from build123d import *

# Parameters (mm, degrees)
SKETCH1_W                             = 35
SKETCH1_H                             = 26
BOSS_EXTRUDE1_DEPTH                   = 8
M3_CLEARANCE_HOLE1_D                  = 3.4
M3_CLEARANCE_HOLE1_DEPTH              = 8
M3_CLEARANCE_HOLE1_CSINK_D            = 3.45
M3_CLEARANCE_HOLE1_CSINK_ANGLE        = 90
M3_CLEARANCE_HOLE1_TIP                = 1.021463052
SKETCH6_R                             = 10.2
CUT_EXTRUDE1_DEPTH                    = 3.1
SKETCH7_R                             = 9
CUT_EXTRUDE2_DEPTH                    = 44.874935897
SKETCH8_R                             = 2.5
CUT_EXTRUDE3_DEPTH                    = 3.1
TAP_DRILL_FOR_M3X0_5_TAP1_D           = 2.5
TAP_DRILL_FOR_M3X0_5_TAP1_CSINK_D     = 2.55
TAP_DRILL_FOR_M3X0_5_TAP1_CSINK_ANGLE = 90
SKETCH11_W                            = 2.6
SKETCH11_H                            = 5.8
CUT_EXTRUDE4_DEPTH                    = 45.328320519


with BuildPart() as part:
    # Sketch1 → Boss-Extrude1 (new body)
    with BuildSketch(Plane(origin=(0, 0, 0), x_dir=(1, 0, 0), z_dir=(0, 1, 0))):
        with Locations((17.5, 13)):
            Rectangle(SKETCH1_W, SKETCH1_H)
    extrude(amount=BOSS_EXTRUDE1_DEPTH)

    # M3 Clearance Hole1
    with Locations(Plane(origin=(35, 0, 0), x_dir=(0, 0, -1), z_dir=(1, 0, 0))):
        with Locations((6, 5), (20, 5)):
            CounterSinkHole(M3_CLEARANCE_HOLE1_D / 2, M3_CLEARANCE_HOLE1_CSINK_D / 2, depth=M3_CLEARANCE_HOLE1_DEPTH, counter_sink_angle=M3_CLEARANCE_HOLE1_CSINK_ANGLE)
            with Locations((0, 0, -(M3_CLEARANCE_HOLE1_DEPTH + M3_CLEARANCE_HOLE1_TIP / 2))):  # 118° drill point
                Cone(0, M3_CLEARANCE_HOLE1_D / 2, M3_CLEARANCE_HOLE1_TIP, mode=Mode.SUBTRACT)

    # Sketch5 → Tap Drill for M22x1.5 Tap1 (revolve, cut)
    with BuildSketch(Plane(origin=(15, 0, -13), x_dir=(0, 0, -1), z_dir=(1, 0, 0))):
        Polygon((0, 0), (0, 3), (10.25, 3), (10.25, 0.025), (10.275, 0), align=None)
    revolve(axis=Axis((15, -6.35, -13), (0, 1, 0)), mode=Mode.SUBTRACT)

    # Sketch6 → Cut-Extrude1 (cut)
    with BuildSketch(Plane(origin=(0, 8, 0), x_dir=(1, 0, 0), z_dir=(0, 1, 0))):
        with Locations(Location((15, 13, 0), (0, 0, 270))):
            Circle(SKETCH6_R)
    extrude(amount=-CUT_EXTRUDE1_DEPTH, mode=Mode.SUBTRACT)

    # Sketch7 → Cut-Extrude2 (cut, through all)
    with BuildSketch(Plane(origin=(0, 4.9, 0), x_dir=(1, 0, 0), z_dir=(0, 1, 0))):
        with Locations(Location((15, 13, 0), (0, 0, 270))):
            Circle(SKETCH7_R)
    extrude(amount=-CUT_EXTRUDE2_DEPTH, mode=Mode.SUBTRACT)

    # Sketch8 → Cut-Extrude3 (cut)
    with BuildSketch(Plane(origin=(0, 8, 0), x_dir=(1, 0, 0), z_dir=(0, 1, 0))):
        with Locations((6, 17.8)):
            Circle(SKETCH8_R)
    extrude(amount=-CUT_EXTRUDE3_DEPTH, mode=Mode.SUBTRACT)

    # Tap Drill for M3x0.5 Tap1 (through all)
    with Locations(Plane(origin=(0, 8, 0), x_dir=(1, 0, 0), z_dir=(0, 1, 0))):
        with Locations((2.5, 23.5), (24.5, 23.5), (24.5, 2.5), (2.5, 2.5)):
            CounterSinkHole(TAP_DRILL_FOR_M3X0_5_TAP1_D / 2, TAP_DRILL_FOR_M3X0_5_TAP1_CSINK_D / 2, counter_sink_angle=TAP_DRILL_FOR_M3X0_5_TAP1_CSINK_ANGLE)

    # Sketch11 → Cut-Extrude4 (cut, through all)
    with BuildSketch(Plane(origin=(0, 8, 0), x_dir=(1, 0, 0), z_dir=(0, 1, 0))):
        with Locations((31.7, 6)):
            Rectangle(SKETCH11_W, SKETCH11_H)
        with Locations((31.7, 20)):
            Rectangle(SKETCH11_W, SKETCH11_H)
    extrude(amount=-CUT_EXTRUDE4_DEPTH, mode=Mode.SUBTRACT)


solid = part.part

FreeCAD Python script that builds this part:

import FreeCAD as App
import Part
import Sketcher

V = App.Vector
Q = App.Units.Quantity

doc = App.newDocument("Part")
params = doc.addObject("Spreadsheet::Sheet", "Params")
for row, (alias, value) in enumerate([
    ("sketch1_width", "35 mm"),
    ("sketch1_height", "26 mm"),
    ("pad1_length", "8 mm"),
    ("sketch2_diameter", "3.4 mm"),
    ("hole_diameter", "3.4 mm"),
    ("hole_depth", "8 mm"),
    ("hole_csink_diameter", "3.45 mm"),
    ("sketch3_width", "3 mm"),
    ("sketch3_height", "10.25 mm"),
    ("groove_angle", "360 deg"),
    ("sketch4_diameter", "20.4 mm"),
    ("pocket1_length", "3.1 mm"),
    ("sketch5_diameter", "18 mm"),
    ("sketch6_diameter", "5 mm"),
    ("pocket3_length", "3.1 mm"),
    ("sketch7_diameter", "2.5 mm"),
    ("hole2_diameter", "2.5 mm"),
    ("hole2_csink_diameter", "2.55 mm"),
    ("sketch8_width", "2.6 mm"),
    ("sketch8_height", "5.8 mm"),
], start=1):
    params.set(f"A{row}", alias)
    params.set(f"B{row}", "=" + value)
    params.setAlias(f"B{row}", alias)

body = doc.addObject("PartDesign::Body", "Body")

# Sketch on XZ plane
sketch1 = body.newObject("Sketcher::SketchObject", "Sketch")
sketch1.AttachmentSupport = (doc.getObject("XZ_Plane"), [""])
sketch1.MapMode = "FlatFace"
sketch1.addGeometry([
    Part.LineSegment(V(0, -26, 0), V(0, 0, 0)),
    Part.LineSegment(V(0, 0, 0), V(35, 0, 0)),
    Part.LineSegment(V(35, 0, 0), V(35, -26, 0)),
    Part.LineSegment(V(35, -26, 0), V(0, -26, 0)),
], False)
sketch1.addConstraint([
    Sketcher.Constraint("Coincident", 0, 2, 1, 1),
    Sketcher.Constraint("Coincident", 1, 2, 2, 1),
    Sketcher.Constraint("Coincident", 2, 2, 3, 1),
    Sketcher.Constraint("Coincident", 3, 2, 0, 1),
    Sketcher.Constraint("Vertical", 0),
    Sketcher.Constraint("Horizontal", 1),
    Sketcher.Constraint("Vertical", 2),
    Sketcher.Constraint("Horizontal", 3),
    Sketcher.Constraint("Coincident", 0, 2, -1, 1),
    Sketcher.Constraint("DistanceX", 1, 1, 1, 2, Q("35 mm")),
    Sketcher.Constraint("DistanceY", 0, 1, 0, 2, Q("26 mm")),
])
sketch1.setExpression("Constraints[9]", "Params.sketch1_width")
sketch1.setExpression("Constraints[10]", "Params.sketch1_height")
pad1 = body.newObject("PartDesign::Pad", "Pad")
pad1.Profile = sketch1
pad1.setExpression("Length", "Params.pad1_length")
pad1.Reversed = True

# Sketch on YZ plane
sketch2 = body.newObject("Sketcher::SketchObject", "Sketch001")
sketch2.AttachmentSupport = (doc.getObject("YZ_Plane"), [""])
sketch2.MapMode = "FlatFace"
sketch2.AttachmentOffset = App.Placement(V(0, 0, 35), App.Rotation())
sketch2.addGeometry([
    Part.Circle(V(5, -6, 0), V(0, 0, 1), 1.7),
    Part.Circle(V(5, -20, 0), V(0, 0, 1), 1.7),
], False)
sketch2.addConstraint([
    Sketcher.Constraint("Equal", 0, 1),
    Sketcher.Constraint("Vertical", 0, 3, 1, 3),
    Sketcher.Constraint("Diameter", 0, Q("3.4 mm")),
    Sketcher.Constraint("DistanceX", -1, 1, 0, 3, Q("5 mm")),
    Sketcher.Constraint("DistanceY", 0, 3, -1, 1, Q("6 mm")),
    Sketcher.Constraint("DistanceY", 1, 3, -1, 1, Q("20 mm")),
])
sketch2.setExpression("Constraints[2]", "Params.sketch2_diameter")
doc.recompute()
hole = body.newObject("PartDesign::Hole", "Hole")
hole.Profile = sketch2
hole.ThreadType = "None"
hole.setExpression("Diameter", "Params.hole_diameter")
hole.DepthType = "Dimension"
hole.setExpression("Depth", "Params.hole_depth")
hole.DrillPoint = "Angled"
hole.DrillPointAngle = 118
hole.HoleCutType = "Countersink"
hole.setExpression("HoleCutDiameter", "Params.hole_csink_diameter")
hole.HoleCutCountersinkAngle = 90

# Sketch on YZ plane
sketch3 = body.newObject("Sketcher::SketchObject", "Sketch002")
sketch3.AttachmentSupport = (doc.getObject("YZ_Plane"), [""])
sketch3.MapMode = "FlatFace"
sketch3.AttachmentOffset = App.Placement(V(0, 0, 15), App.Rotation())
sketch3.addGeometry([
    Part.LineSegment(V(3, -13, 0), V(0, -13, 0)),  # 0
    Part.LineSegment(V(0, -13, 0), V(0, -23.275, 0)),  # 1
    Part.LineSegment(V(0, -23.275, 0), V(0.025, -23.25, 0)),  # 2
    Part.LineSegment(V(0.025, -23.25, 0), V(3, -23.25, 0)),  # 3
    Part.LineSegment(V(3, -23.25, 0), V(3, -13, 0)),  # 4
], False)
sketch3.addGeometry(Part.LineSegment(V(0, -13, 0), V(3, -13, 0)), True)  # axis
sketch3.addConstraint([
    Sketcher.Constraint("Coincident", 0, 2, 1, 1),
    Sketcher.Constraint("Coincident", 1, 2, 2, 1),
    Sketcher.Constraint("Coincident", 2, 2, 3, 1),
    Sketcher.Constraint("Coincident", 3, 2, 4, 1),
    Sketcher.Constraint("Coincident", 4, 2, 0, 1),
    Sketcher.Constraint("Horizontal", 0),
    Sketcher.Constraint("Vertical", 1),
    Sketcher.Constraint("Horizontal", 3),
    Sketcher.Constraint("Vertical", 4),
    Sketcher.Constraint("Horizontal", 5),
    Sketcher.Constraint("Coincident", 5, 1, 0, 2),
    Sketcher.Constraint("PointOnObject", 0, 2, -2),
    Sketcher.Constraint("Vertical", 3, 2, 5, 2),
    Sketcher.Constraint("DistanceX", 0, 2, 0, 1, Q("3 mm")),
    Sketcher.Constraint("Angle", 2, Q("45 deg")),
    Sketcher.Constraint("DistanceY", 0, 2, -1, 1, Q("13 mm")),
    Sketcher.Constraint("DistanceY", 4, 1, 4, 2, Q("10.25 mm")),
    Sketcher.Constraint("DistanceX", 3, 1, 3, 2, Q("2.975 mm")),
])
sketch3.setExpression("Constraints[13]", "Params.sketch3_width")
sketch3.setExpression("Constraints[16]", "Params.sketch3_height")
groove = body.newObject("PartDesign::Groove", "Groove")
groove.Profile = sketch3
groove.ReferenceAxis = (sketch3, ["Axis0"])
groove.setExpression("Angle", "Params.groove_angle")

# Sketch on XZ plane
sketch4 = body.newObject("Sketcher::SketchObject", "Sketch003")
sketch4.AttachmentSupport = (doc.getObject("XZ_Plane"), [""])
sketch4.MapMode = "FlatFace"
sketch4.AttachmentOffset = App.Placement(V(0, 0, -8), App.Rotation())
sketch4.addGeometry(Part.Circle(V(15, -13, 0), V(0, 0, 1), 10), False)
sketch4.addConstraint([
    Sketcher.Constraint("Diameter", 0, Q("20.4 mm")),
    Sketcher.Constraint("DistanceX", -1, 1, 0, 3, Q("15 mm")),
    Sketcher.Constraint("DistanceY", 0, 3, -1, 1, Q("13 mm")),
])
sketch4.setExpression("Constraints[0]", "Params.sketch4_diameter")
pocket1 = body.newObject("PartDesign::Pocket", "Pocket")
pocket1.Profile = sketch4
pocket1.setExpression("Length", "Params.pocket1_length")
pocket1.Reversed = True

# Sketch on XZ plane
sketch5 = body.newObject("Sketcher::SketchObject", "Sketch004")
sketch5.AttachmentSupport = (doc.getObject("XZ_Plane"), [""])
sketch5.MapMode = "FlatFace"
sketch5.AttachmentOffset = App.Placement(V(0, 0, -4.9), App.Rotation())
sketch5.addGeometry(Part.Circle(V(15, -13, 0), V(0, 0, 1), 9), False)
sketch5.addConstraint([
    Sketcher.Constraint("Diameter", 0, Q("18 mm")),
    Sketcher.Constraint("DistanceX", -1, 1, 0, 3, Q("15 mm")),
    Sketcher.Constraint("DistanceY", 0, 3, -1, 1, Q("13 mm")),
])
sketch5.setExpression("Constraints[0]", "Params.sketch5_diameter")
pocket2 = body.newObject("PartDesign::Pocket", "Pocket001")
pocket2.Profile = sketch5
pocket2.Type = "ThroughAll"
pocket2.Reversed = True

# Sketch on XZ plane
sketch6 = body.newObject("Sketcher::SketchObject", "Sketch005")
sketch6.AttachmentSupport = (doc.getObject("XZ_Plane"), [""])
sketch6.MapMode = "FlatFace"
sketch6.AttachmentOffset = App.Placement(V(0, 0, -8), App.Rotation())
sketch6.addGeometry(Part.Circle(V(6, -17.8, 0), V(0, 0, 1), 2.5), False)
sketch6.addConstraint([
    Sketcher.Constraint("Diameter", 0, Q("5 mm")),
    Sketcher.Constraint("DistanceX", -1, 1, 0, 3, Q("6 mm")),
    Sketcher.Constraint("DistanceY", 0, 3, -1, 1, Q("17.8 mm")),
])
sketch6.setExpression("Constraints[0]", "Params.sketch6_diameter")
pocket3 = body.newObject("PartDesign::Pocket", "Pocket002")
pocket3.Profile = sketch6
pocket3.setExpression("Length", "Params.pocket3_length")
pocket3.Reversed = True

# Sketch on XZ plane
sketch7 = body.newObject("Sketcher::SketchObject", "Sketch006")
sketch7.AttachmentSupport = (doc.getObject("XZ_Plane"), [""])
sketch7.MapMode = "FlatFace"
sketch7.AttachmentOffset = App.Placement(V(0, 0, -8), App.Rotation())
sketch7.addGeometry([
    Part.Circle(V(2.5, -23.5, 0), V(0, 0, 1), 1.2),
    Part.Circle(V(24.5, -23.5, 0), V(0, 0, 1), 1.2),
    Part.Circle(V(24.5, -2.5, 0), V(0, 0, 1), 1.2),
    Part.Circle(V(2.5, -2.5, 0), V(0, 0, 1), 1.2),
], False)
sketch7.addConstraint([
    Sketcher.Constraint("Equal", 0, 1),
    Sketcher.Constraint("Equal", 1, 2),
    Sketcher.Constraint("Equal", 2, 3),
    Sketcher.Constraint("Horizontal", 0, 3, 1, 3),
    Sketcher.Constraint("Horizontal", 2, 3, 3, 3),
    Sketcher.Constraint("Vertical", 1, 3, 2, 3),
    Sketcher.Constraint("Vertical", 0, 3, 3, 3),
    Sketcher.Constraint("Diameter", 0, Q("2.5 mm")),
    Sketcher.Constraint("DistanceX", 0, 3, 1, 3, Q("22 mm")),
    Sketcher.Constraint("DistanceY", 1, 3, 2, 3, Q("21 mm")),
    Sketcher.Constraint("DistanceX", -1, 1, 0, 3, Q("2.5 mm")),
    Sketcher.Constraint("DistanceY", 0, 3, -1, 1, Q("23.5 mm")),
])
sketch7.setExpression("Constraints[7]", "Params.sketch7_diameter")
doc.recompute()
hole2 = body.newObject("PartDesign::Hole", "Hole001")
hole2.Profile = sketch7
hole2.ThreadType = "None"
hole2.setExpression("Diameter", "Params.hole2_diameter")
hole2.DepthType = "ThroughAll"
hole2.HoleCutType = "Countersink"
hole2.setExpression("HoleCutDiameter", "Params.hole2_csink_diameter")
hole2.HoleCutCountersinkAngle = 90
hole2.Reversed = True

# Sketch on XZ plane
sketch8 = body.newObject("Sketcher::SketchObject", "Sketch007")
sketch8.AttachmentSupport = (doc.getObject("XZ_Plane"), [""])
sketch8.MapMode = "FlatFace"
sketch8.AttachmentOffset = App.Placement(V(0, 0, -8), App.Rotation())
sketch8.addGeometry([
    Part.LineSegment(V(30.4, -8.9, 0), V(30.4, -3.1, 0)),  # 0
    Part.LineSegment(V(30.4, -3.1, 0), V(33, -3.1, 0)),  # 1
    Part.LineSegment(V(33, -3.1, 0), V(33, -8.9, 0)),  # 2
    Part.LineSegment(V(33, -8.9, 0), V(30.4, -8.9, 0)),  # 3
    Part.LineSegment(V(30.4, -22.9, 0), V(30.4, -17.1, 0)),  # 4
    Part.LineSegment(V(30.4, -17.1, 0), V(33, -17.1, 0)),  # 5
    Part.LineSegment(V(33, -17.1, 0), V(33, -22.9, 0)),  # 6
    Part.LineSegment(V(33, -22.9, 0), V(30.4, -22.9, 0)),  # 7
], False)
sketch8.addConstraint([
    Sketcher.Constraint("Coincident", 0, 2, 1, 1),
    Sketcher.Constraint("Coincident", 1, 2, 2, 1),
    Sketcher.Constraint("Coincident", 2, 2, 3, 1),
    Sketcher.Constraint("Coincident", 3, 2, 0, 1),
    Sketcher.Constraint("Coincident", 4, 2, 5, 1),
    Sketcher.Constraint("Coincident", 5, 2, 6, 1),
    Sketcher.Constraint("Coincident", 6, 2, 7, 1),
    Sketcher.Constraint("Coincident", 7, 2, 4, 1),
    Sketcher.Constraint("Vertical", 0),
    Sketcher.Constraint("Horizontal", 1),
    Sketcher.Constraint("Vertical", 2),
    Sketcher.Constraint("Horizontal", 3),
    Sketcher.Constraint("Vertical", 4),
    Sketcher.Constraint("Horizontal", 5),
    Sketcher.Constraint("Vertical", 6),
    Sketcher.Constraint("Horizontal", 7),
    Sketcher.Constraint("Vertical", 3, 2, 4, 2),
    Sketcher.Constraint("Vertical", 2, 2, 5, 2),
    Sketcher.Constraint("Equal", 2, 4),
    Sketcher.Constraint("DistanceX", 1, 1, 1, 2, Q("2.6 mm")),
    Sketcher.Constraint("DistanceY", 0, 1, 0, 2, Q("5.8 mm")),
    Sketcher.Constraint("DistanceX", -1, 1, 1, 2, Q("33 mm")),
    Sketcher.Constraint("DistanceY", 4, 2, 0, 2, Q("14 mm")),
    Sketcher.Constraint("DistanceY", 0, 2, -1, 1, Q("3.1 mm")),
])
sketch8.setExpression("Constraints[19]", "Params.sketch8_width")
sketch8.setExpression("Constraints[20]", "Params.sketch8_height")
pocket4 = body.newObject("PartDesign::Pocket", "Pocket003")
pocket4.Profile = sketch8
pocket4.Type = "ThroughAll"
pocket4.Reversed = True

doc.recompute()
